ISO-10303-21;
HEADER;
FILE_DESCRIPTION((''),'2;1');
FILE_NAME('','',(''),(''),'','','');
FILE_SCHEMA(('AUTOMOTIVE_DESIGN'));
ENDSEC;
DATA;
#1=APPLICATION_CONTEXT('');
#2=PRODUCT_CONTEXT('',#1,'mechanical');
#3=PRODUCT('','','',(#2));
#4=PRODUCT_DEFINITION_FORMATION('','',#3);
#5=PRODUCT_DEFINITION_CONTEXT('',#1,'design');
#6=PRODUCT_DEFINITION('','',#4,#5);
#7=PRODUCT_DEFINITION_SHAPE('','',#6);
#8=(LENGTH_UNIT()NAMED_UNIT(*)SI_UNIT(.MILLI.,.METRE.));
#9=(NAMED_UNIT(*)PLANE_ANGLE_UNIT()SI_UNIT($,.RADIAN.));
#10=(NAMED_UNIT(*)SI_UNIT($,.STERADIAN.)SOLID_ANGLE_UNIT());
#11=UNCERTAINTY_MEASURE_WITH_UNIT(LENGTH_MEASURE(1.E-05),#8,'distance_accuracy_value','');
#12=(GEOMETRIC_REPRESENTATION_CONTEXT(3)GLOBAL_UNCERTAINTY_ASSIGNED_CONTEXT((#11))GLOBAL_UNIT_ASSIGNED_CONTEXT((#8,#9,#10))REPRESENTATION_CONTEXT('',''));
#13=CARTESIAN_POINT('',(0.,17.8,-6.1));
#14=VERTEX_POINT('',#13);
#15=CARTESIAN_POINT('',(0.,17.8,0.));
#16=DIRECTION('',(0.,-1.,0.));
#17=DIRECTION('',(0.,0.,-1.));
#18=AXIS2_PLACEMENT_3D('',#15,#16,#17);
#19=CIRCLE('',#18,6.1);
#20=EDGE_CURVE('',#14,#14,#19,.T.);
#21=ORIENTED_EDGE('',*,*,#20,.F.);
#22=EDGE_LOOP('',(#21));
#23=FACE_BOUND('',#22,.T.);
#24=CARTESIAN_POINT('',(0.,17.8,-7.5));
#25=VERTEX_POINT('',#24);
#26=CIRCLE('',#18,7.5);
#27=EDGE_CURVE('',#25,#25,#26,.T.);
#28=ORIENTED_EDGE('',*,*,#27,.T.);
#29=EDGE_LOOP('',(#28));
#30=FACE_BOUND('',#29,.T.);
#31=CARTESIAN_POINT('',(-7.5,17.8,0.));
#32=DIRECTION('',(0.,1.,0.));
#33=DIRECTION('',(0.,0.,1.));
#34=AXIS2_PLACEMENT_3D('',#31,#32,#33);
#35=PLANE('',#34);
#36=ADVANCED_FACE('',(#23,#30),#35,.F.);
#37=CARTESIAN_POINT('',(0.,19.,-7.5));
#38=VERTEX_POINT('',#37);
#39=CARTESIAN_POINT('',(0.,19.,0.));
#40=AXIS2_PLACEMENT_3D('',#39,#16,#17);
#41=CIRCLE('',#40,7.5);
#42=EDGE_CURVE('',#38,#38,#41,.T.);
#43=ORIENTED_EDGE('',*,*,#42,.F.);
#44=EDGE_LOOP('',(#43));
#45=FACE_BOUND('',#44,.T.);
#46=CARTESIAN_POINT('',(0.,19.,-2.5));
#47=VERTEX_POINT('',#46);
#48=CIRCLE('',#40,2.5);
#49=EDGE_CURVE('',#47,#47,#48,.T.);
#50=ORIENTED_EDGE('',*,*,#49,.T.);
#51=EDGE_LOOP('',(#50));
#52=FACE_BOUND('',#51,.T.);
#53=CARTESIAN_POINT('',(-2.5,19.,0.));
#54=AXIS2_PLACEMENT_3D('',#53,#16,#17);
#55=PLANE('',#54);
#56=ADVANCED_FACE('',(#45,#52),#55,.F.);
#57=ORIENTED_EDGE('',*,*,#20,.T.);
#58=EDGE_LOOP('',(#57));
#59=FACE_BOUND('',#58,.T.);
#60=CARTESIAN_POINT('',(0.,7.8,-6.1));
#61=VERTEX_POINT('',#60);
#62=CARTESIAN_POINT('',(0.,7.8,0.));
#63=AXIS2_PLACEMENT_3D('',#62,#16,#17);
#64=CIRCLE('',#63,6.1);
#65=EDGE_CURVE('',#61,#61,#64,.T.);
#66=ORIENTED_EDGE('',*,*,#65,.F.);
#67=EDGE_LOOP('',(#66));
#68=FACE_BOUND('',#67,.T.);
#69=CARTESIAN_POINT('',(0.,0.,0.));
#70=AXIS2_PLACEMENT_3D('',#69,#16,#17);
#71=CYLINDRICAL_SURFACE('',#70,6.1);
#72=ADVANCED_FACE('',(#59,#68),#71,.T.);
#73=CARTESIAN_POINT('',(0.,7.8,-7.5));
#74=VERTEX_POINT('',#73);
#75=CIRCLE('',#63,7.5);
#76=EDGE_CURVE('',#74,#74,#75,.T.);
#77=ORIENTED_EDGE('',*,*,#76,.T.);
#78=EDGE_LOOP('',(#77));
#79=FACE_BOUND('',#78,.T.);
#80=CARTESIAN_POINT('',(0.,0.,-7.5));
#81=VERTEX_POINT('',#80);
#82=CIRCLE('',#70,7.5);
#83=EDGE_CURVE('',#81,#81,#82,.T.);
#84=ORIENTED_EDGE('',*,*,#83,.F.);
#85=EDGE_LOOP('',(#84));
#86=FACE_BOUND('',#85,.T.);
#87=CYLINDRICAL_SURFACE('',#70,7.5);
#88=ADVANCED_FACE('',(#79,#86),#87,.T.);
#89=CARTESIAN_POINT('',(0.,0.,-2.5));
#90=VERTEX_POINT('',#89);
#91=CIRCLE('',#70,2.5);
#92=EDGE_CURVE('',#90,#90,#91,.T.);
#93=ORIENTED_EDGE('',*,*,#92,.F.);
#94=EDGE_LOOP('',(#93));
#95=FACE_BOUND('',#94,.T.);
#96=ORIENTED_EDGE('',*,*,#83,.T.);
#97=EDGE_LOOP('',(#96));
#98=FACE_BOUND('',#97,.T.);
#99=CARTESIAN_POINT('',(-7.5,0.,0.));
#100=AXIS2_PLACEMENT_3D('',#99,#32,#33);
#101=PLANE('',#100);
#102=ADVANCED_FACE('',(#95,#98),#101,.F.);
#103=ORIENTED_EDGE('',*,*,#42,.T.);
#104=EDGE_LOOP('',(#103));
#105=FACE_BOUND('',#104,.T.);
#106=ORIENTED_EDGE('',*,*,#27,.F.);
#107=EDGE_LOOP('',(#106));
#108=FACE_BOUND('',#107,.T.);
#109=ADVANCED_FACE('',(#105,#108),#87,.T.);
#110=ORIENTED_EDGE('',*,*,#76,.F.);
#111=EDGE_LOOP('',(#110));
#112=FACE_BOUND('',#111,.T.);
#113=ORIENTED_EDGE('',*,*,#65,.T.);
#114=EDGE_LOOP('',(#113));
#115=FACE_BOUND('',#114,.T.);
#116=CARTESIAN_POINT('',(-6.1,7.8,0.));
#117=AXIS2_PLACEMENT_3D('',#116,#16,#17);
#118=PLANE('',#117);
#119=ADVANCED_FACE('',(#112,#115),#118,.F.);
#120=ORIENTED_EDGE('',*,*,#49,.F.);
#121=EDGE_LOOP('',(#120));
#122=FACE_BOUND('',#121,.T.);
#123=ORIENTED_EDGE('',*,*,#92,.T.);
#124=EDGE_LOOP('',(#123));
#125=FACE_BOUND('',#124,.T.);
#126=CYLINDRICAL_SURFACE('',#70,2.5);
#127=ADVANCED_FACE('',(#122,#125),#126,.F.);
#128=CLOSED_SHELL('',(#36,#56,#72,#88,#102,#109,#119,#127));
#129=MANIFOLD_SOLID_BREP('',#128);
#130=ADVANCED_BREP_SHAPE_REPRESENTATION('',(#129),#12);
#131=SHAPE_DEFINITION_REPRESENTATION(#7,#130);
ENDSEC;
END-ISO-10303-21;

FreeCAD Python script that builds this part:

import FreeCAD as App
import Part
import Sketcher
from FreeCAD import Vector


def add_polygon(sketch, points):
    """Adds a closed chain of lines whose ends are joined by coincident constraints."""
    first, n = sketch.GeometryCount, len(points)
    for a, b in zip(points, points[1:] + points[:1]):
        sketch.addGeometry(Part.LineSegment(App.Vector(*a, 0), App.Vector(*b, 0)), False)
    for i in range(n):
        sketch.addConstraint(Sketcher.Constraint("Coincident", first + i, 2, first + (i + 1) % n, 1))

doc = App.newDocument("Part")
params = doc.addObject("Spreadsheet::Sheet", "Params")
for row, (alias, value) in enumerate([
    ("sketch1_width", "5 mm"),
    ("sketch1_height", "19 mm"),
    ("sketch1_height2", "10 mm"),
    ("sketch1_width2", "1.4 mm"),
    ("sketch1_height3", "1.2 mm"),
    ("revolution_angle", "360 deg"),
], start=1):
    params.set(f"A{row}", alias)
    params.set(f"B{row}", "=" + value)
    params.setAlias(f"B{row}", alias)

body = doc.addObject("PartDesign::Body", "Body")

sketch1 = body.newObject("Sketcher::SketchObject", "Sketch")
sketch1.AttachmentSupport = (doc.getObject("XY_Plane"), [""])
sketch1.MapMode = "FlatFace"
add_polygon(sketch1, [(-2.5, 0), (-2.5, 19), (-7.5, 19), (-7.5, 17.8), (-6.1, 17.8), (-6.1, 7.8), (-7.5, 7.8), (-7.5, 0)])
sketch1.addConstraint(Sketcher.Constraint("Vertical", 0))
sketch1.addConstraint(Sketcher.Constraint("Horizontal", 1))
sketch1.addConstraint(Sketcher.Constraint("Vertical", 2))
sketch1.addConstraint(Sketcher.Constraint("Horizontal", 3))
sketch1.addConstraint(Sketcher.Constraint("Vertical", 4))
sketch1.addConstraint(Sketcher.Constraint("Horizontal", 5))
sketch1.addConstraint(Sketcher.Constraint("Vertical", 6))
sketch1.addConstraint(Sketcher.Constraint("Horizontal", 7))
sketch1.addConstraint(Sketcher.Constraint("PointOnObject", 6, 2, -1))
sketch1.addConstraint(Sketcher.Constraint("Vertical", 2, 2, 5, 2))
sketch1.addConstraint(Sketcher.Constraint("DistanceX", 1, 2, 1, 1, 5.0))
sketch1.addConstraint(Sketcher.Constraint("DistanceY", 0, 1, 0, 2, 19.0))
sketch1.addConstraint(Sketcher.Constraint("DistanceY", 4, 2, 4, 1, 10.0))
sketch1.addConstraint(Sketcher.Constraint("DistanceX", 3, 1, 3, 2, 1.4))
sketch1.addConstraint(Sketcher.Constraint("DistanceY", 2, 2, 2, 1, 1.2))
sketch1.addConstraint(Sketcher.Constraint("DistanceX", 0, 2, -1, 1, 2.5))
sketch1.setExpression("Constraints[18]", "Params.sketch1_width")
sketch1.setExpression("Constraints[19]", "Params.sketch1_height")
sketch1.setExpression("Constraints[20]", "Params.sketch1_height2")
sketch1.setExpression("Constraints[21]", "Params.sketch1_width2")
sketch1.setExpression("Constraints[22]", "Params.sketch1_height3")
revolution = body.newObject("PartDesign::Revolution", "Revolution")
revolution.Profile = sketch1
revolution.ReferenceAxis = (sketch1, ["V_Axis"])
revolution.setExpression("Angle", "Params.revolution_angle")

doc.recompute()
